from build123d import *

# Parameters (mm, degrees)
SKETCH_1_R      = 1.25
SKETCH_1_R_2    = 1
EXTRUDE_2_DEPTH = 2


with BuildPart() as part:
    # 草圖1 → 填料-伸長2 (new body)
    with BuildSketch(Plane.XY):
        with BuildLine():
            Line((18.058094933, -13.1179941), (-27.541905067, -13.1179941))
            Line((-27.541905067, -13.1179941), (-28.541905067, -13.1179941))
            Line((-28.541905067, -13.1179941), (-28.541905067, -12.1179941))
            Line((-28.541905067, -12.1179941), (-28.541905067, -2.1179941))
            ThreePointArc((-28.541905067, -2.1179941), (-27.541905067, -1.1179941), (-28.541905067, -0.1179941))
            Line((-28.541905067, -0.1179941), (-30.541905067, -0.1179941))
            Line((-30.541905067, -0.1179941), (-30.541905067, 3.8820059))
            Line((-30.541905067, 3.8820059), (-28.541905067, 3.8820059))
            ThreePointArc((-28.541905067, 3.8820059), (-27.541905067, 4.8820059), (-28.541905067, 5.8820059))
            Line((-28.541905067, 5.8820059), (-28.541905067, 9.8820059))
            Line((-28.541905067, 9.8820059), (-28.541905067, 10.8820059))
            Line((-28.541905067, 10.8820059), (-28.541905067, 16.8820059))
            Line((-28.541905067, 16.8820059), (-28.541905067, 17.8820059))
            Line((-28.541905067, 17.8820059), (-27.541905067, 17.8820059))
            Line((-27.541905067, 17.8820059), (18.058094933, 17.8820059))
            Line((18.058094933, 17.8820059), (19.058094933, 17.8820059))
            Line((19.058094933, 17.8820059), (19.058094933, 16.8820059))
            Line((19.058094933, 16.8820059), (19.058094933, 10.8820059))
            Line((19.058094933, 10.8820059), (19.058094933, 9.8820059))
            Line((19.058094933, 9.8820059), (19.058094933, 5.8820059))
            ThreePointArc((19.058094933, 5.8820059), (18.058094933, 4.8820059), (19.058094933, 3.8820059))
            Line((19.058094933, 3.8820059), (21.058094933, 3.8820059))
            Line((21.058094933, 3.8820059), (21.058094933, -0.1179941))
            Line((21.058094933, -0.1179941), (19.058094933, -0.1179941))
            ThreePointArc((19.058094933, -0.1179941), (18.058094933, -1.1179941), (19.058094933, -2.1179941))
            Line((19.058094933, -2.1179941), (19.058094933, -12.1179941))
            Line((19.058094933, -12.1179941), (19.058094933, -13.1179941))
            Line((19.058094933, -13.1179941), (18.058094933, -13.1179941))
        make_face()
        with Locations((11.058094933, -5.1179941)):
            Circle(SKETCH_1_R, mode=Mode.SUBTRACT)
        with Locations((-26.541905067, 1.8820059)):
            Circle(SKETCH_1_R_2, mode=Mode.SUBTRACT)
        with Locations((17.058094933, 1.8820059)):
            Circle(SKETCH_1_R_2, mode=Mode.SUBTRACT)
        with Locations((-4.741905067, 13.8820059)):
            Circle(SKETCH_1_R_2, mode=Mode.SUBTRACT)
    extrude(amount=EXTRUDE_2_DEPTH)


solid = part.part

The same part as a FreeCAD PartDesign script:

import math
import FreeCAD as App
import Part
import Sketcher
from FreeCAD import Vector

doc = App.newDocument("Part")
body = doc.addObject("PartDesign::Body", "Body")

# Sketch on XY plane
sketch1 = doc.addObject("Sketcher::SketchObject", "Sketch")
body.addObject(sketch1)
sketch1.AttachmentSupport = (doc.XY_Plane, [""])
sketch1.MapMode = "FlatFace"
sketch1.addGeometry(Part.LineSegment(Vector(-28.541905, -2.117994, 0), Vector(-28.541905, -13.117994, 0)), False)
sketch1.addGeometry(Part.LineSegment(Vector(-28.541905, -13.117994, 0), Vector(19.058095, -13.117994, 0)), False)
sketch1.addGeometry(Part.LineSegment(Vector(19.058095, -13.117994, 0), Vector(19.058095, -2.117994, 0)), False)
sketch1.addGeometry(Part.ArcOfCircle(Part.Circle(Vector(19.058095, -1.117994, 0), Vector(0, 0, 1), 1), math.radians(90), math.radians(270)), False)
sketch1.addGeometry(Part.LineSegment(Vector(19.058095, -0.117994, 0), Vector(21.058095, -0.117994, 0)), False)
sketch1.addGeometry(Part.LineSegment(Vector(21.058095, -0.117994, 0), Vector(21.058095, 3.882006, 0)), False)
sketch1.addGeometry(Part.LineSegment(Vector(21.058095, 3.882006, 0), Vector(19.058095, 3.882006, 0)), False)
sketch1.addGeometry(Part.ArcOfCircle(Part.Circle(Vector(19.058095, 4.882006, 0), Vector(0, 0, 1), 1), math.radians(90), math.radians(270)), False)
sketch1.addGeometry(Part.LineSegment(Vector(19.058095, 5.882006, 0), Vector(19.058095, 17.882006, 0)), False)
sketch1.addGeometry(Part.LineSegment(Vector(19.058095, 17.882006, 0), Vector(-28.541905, 17.882006, 0)), False)
sketch1.addGeometry(Part.LineSegment(Vector(-28.541905, 17.882006, 0), Vector(-28.541905, 5.882006, 0)), False)
sketch1.addGeometry(Part.ArcOfCircle(Part.Circle(Vector(-28.541905, 4.882006, 0), Vector(0, 0, 1), 1), math.radians(-90), math.radians(90)), False)
sketch1.addGeometry(Part.LineSegment(Vector(-28.541905, 3.882006, 0), Vector(-30.541905, 3.882006, 0)), False)
sketch1.addGeometry(Part.LineSegment(Vector(-30.541905, 3.882006, 0), Vector(-30.541905, -0.117994, 0)), False)
sketch1.addGeometry(Part.LineSegment(Vector(-30.541905, -0.117994, 0), Vector(-28.541905, -0.117994, 0)), False)
sketch1.addGeometry(Part.ArcOfCircle(Part.Circle(Vector(-28.541905, -1.117994, 0), Vector(0, 0, 1), 1), math.radians(-90), math.radians(90)), False)
sketch1.addGeometry(Part.Circle(Vector(11.058095, -5.117994, 0), Vector(0, 0, 1), 1.25), False)
sketch1.addGeometry(Part.Circle(Vector(17.058095, 1.882006, 0), Vector(0, 0, 1), 1), False)
sketch1.addGeometry(Part.Circle(Vector(-26.541905, 1.882006, 0), Vector(0, 0, 1), 1), False)
sketch1.addGeometry(Part.Circle(Vector(-4.741905, 13.882006, 0), Vector(0, 0, 1), 1), False)
sketch1.addConstraint(Sketcher.Constraint("Coincident", 0, 2, 1, 1))
sketch1.addConstraint(Sketcher.Constraint("Coincident", 1, 2, 2, 1))
sketch1.addConstraint(Sketcher.Constraint("Coincident", 2, 2, 3, 2))
sketch1.addConstraint(Sketcher.Constraint("Tangent", 3, 1, 4, 1))
sketch1.addConstraint(Sketcher.Constraint("Coincident", 4, 2, 5, 1))
sketch1.addConstraint(Sketcher.Constraint("Coincident", 5, 2, 6, 1))
sketch1.addConstraint(Sketcher.Constraint("Tangent", 6, 2, 7, 2))
sketch1.addConstraint(Sketcher.Constraint("Coincident", 7, 1, 8, 1))
sketch1.addConstraint(Sketcher.Constraint("Coincident", 8, 2, 9, 1))
sketch1.addConstraint(Sketcher.Constraint("Coincident", 9, 2, 10, 1))
sketch1.addConstraint(Sketcher.Constraint("Coincident", 10, 2, 11, 2))
sketch1.addConstraint(Sketcher.Constraint("Tangent", 11, 1, 12, 1))
sketch1.addConstraint(Sketcher.Constraint("Coincident", 12, 2, 13, 1))
sketch1.addConstraint(Sketcher.Constraint("Coincident", 13, 2, 14, 1))
sketch1.addConstraint(Sketcher.Constraint("Tangent", 14, 2, 15, 2))
sketch1.addConstraint(Sketcher.Constraint("Coincident", 15, 1, 0, 1))
sketch1.addConstraint(Sketcher.Constraint("Vertical", 0))
sketch1.addConstraint(Sketcher.Constraint("Horizontal", 1))
sketch1.addConstraint(Sketcher.Constraint("Vertical", 2))
sketch1.addConstraint(Sketcher.Constraint("Horizontal", 4))
sketch1.addConstraint(Sketcher.Constraint("Vertical", 5))
sketch1.addConstraint(Sketcher.Constraint("Horizontal", 6))
sketch1.addConstraint(Sketcher.Constraint("Vertical", 8))
sketch1.addConstraint(Sketcher.Constraint("Horizontal", 9))
sketch1.addConstraint(Sketcher.Constraint("Vertical", 10))
sketch1.addConstraint(Sketcher.Constraint("Horizontal", 12))
sketch1.addConstraint(Sketcher.Constraint("Vertical", 13))
sketch1.addConstraint(Sketcher.Constraint("Horizontal", 14))
sketch1.addConstraint(Sketcher.Constraint("Equal", 3, 7))
sketch1.addConstraint(Sketcher.Constraint("Equal", 7, 11))
sketch1.addConstraint(Sketcher.Constraint("Equal", 11, 15))
sketch1.addConstraint(Sketcher.Constraint("Equal", 15, 17))
sketch1.addConstraint(Sketcher.Constraint("Equal", 17, 18))
sketch1.addConstraint(Sketcher.Constraint("Equal", 18, 19))
sketch1.addConstraint(Sketcher.Constraint("Horizontal", 7, 3, 11, 3))
sketch1.addConstraint(Sketcher.Constraint("Horizontal", 3, 3, 15, 3))
sketch1.addConstraint(Sketcher.Constraint("Horizontal", 17, 3, 18, 3))
sketch1.addConstraint(Sketcher.Constraint("Vertical", 3, 3, 7, 3))
sketch1.addConstraint(Sketcher.Constraint("Vertical", 11, 3, 15, 3))
sketch1.addConstraint(Sketcher.Constraint("Vertical", 15, 3, 0, 2))
sketch1.addConstraint(Sketcher.Constraint("Vertical", 7, 3, 1, 2))
sketch1.addConstraint(Sketcher.Constraint("Vertical", 6, 2, 7, 1))
sketch1.addConstraint(Sketcher.Constraint("Vertical", 0, 2, 9, 2))
sketch1.addConstraint(Sketcher.Constraint("Equal", 6, 12))
sketch1.addConstraint(Sketcher.Constraint("Diameter", 17, 2.0))
sketch1.addConstraint(Sketcher.Constraint("Diameter", 16, 2.5))
sketch1.addConstraint(Sketcher.Constraint("DistanceX", 4, 1, 4, 2, 2.0))
sketch1.addConstraint(Sketcher.Constraint("DistanceY", 0, 2, 0, 1, 11.0))
sketch1.addConstraint(Sketcher.Constraint("DistanceY", 5, 1, 5, 2, 4.0))
sketch1.addConstraint(Sketcher.Constraint("DistanceY", 8, 1, 8, 2, 12.0))
sketch1.addConstraint(Sketcher.Constraint("DistanceX", 1, 1, 1, 2, 47.6))
sketch1.addConstraint(Sketcher.Constraint("DistanceX", 16, 3, 3, 3, 8.0))
sketch1.addConstraint(Sketcher.Constraint("DistanceY", 16, 3, 3, 3, 4.0))
sketch1.addConstraint(Sketcher.Constraint("DistanceX", 17, 3, 3, 3, 2.0))
sketch1.addConstraint(Sketcher.Constraint("DistanceY", 3, 3, 17, 3, 3.0))
sketch1.addConstraint(Sketcher.Constraint("DistanceX", 11, 3, 18, 3, 2.0))
sketch1.addConstraint(Sketcher.Constraint("DistanceY", 16, 3, 19, 3, 19.0))
sketch1.addConstraint(Sketcher.Constraint("DistanceX", 19, 3, 16, 3, 15.8))
sketch1.addConstraint(Sketcher.Constraint("DistanceX", -1, 1, 3, 3, 19.058095))
sketch1.addConstraint(Sketcher.Constraint("DistanceY", 3, 3, -1, 1, 1.117994))
pad1 = doc.addObject("PartDesign::Pad", "Pad")
body.addObject(pad1)
pad1.Profile = sketch1
pad1.Length = 2

doc.recompute()
